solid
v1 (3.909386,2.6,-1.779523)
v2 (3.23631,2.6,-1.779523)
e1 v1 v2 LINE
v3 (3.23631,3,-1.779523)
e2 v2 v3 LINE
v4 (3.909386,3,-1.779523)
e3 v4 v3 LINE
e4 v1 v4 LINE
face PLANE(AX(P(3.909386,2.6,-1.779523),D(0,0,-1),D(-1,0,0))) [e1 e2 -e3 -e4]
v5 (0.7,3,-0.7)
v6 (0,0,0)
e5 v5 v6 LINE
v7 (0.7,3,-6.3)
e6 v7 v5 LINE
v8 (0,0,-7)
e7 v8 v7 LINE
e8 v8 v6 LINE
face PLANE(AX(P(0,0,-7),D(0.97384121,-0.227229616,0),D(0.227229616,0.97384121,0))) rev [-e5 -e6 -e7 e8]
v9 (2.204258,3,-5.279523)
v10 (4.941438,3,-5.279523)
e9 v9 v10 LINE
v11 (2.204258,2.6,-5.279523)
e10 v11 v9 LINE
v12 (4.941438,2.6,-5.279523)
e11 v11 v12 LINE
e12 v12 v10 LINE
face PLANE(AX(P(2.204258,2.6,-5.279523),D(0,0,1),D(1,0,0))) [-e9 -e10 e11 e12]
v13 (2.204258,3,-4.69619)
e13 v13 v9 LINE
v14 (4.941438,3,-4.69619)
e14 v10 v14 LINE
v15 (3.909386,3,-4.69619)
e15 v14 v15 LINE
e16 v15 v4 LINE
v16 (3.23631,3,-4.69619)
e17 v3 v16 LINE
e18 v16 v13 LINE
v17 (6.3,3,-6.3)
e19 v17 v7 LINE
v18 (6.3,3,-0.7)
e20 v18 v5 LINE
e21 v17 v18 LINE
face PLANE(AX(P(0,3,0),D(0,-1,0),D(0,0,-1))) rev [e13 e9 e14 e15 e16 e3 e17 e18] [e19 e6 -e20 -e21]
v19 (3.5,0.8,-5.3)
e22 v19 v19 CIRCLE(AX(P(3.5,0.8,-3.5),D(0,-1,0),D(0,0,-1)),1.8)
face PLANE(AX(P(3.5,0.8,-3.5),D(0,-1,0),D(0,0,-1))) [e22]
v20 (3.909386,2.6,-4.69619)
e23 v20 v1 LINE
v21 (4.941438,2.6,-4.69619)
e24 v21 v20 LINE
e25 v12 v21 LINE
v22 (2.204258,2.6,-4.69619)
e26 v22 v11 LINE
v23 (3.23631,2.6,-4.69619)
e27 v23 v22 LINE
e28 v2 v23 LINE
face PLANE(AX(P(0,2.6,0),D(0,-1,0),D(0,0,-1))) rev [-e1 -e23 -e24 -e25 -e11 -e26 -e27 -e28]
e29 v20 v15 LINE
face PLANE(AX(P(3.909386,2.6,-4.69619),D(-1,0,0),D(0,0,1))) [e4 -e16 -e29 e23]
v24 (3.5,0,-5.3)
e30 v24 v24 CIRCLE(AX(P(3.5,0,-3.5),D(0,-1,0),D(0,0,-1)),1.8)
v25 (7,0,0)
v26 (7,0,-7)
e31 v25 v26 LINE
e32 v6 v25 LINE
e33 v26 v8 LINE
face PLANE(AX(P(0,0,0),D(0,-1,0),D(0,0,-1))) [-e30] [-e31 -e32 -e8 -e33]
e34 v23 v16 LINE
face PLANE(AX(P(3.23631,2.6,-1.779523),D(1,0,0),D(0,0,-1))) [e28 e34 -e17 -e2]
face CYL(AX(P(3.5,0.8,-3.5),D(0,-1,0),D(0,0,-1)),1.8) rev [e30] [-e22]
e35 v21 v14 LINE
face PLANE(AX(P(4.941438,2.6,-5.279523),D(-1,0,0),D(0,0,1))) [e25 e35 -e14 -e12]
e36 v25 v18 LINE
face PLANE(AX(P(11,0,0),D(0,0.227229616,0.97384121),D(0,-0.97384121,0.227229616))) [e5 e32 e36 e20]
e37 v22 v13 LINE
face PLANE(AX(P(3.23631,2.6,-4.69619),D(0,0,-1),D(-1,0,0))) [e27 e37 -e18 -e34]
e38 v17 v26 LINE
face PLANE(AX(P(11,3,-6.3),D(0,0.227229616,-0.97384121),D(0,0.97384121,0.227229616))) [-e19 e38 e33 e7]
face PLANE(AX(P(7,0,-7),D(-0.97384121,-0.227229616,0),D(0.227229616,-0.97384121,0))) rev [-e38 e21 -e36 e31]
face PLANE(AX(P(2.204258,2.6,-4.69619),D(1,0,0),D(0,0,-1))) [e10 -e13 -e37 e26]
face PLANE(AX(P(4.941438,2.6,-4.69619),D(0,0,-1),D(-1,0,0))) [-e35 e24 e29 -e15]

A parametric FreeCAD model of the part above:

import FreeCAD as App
import Part
import Sketcher
from FreeCAD import Vector
Q = App.Units.Quantity


def add_polygon(sketch, points):
    """Adds a closed chain of lines whose ends are joined by coincident constraints."""
    first, n = sketch.GeometryCount, len(points)
    for a, b in zip(points, points[1:] + points[:1]):
        sketch.addGeometry(Part.LineSegment(App.Vector(*a, 0), App.Vector(*b, 0)), False)
    for i in range(n):
        sketch.addConstraint(Sketcher.Constraint("Coincident", first + i, 2, first + (i + 1) % n, 1))

doc = App.newDocument("Part")
body = doc.addObject("PartDesign::Body", "Body")

sketch1 = body.newObject("Sketcher::SketchObject", "Sketch")
sketch1.AttachmentSupport = (doc.getObject("XZ_Plane"), [""])
sketch1.MapMode = "FlatFace"
add_polygon(sketch1, [(0, -7), (0, 0), (7, 0), (7, -7)])
sketch1.addConstraint(Sketcher.Constraint("Vertical", 0))
sketch1.addConstraint(Sketcher.Constraint("Horizontal", 1))
sketch1.addConstraint(Sketcher.Constraint("Vertical", 2))
sketch1.addConstraint(Sketcher.Constraint("Horizontal", 3))
sketch1.addConstraint(Sketcher.Constraint("Coincident", 0, 2, -1, 1))
sketch1.addConstraint(Sketcher.Constraint("Equal", 3, 0))
sketch1.addConstraint(Sketcher.Constraint("DistanceX", 1, 1, 1, 2, Q("7 mm")))
pad1 = body.newObject("PartDesign::Pad", "Pad")
pad1.Profile = sketch1
pad1.Length = 3
pad1.Reversed = True

sketch2 = body.newObject("Sketcher::SketchObject", "Sketch001")
sketch2.AttachmentSupport = (doc.getObject("XY_Plane"), [""])
sketch2.MapMode = "FlatFace"
add_polygon(sketch2, [(0, 0), (0.7, 3), (0, 3)])
add_polygon(sketch2, [(6.3, 3), (7, 0), (7, 3)])
sketch2.addConstraint(Sketcher.Constraint("Horizontal", 1))
sketch2.addConstraint(Sketcher.Constraint("Vertical", 2))
sketch2.addConstraint(Sketcher.Constraint("Vertical", 4))
sketch2.addConstraint(Sketcher.Constraint("Horizontal", 5))
sketch2.addConstraint(Sketcher.Constraint("Coincident", 2, 2, -1, 1))
sketch2.addConstraint(Sketcher.Constraint("PointOnObject", 3, 2, -1))
sketch2.addConstraint(Sketcher.Constraint("Horizontal", 1, 2, 4, 2))
sketch2.addConstraint(Sketcher.Constraint("Equal", 1, 5))
sketch2.addConstraint(Sketcher.Constraint("DistanceY", 2, 2, 2, 1, Q("3 mm")))
sketch2.addConstraint(Sketcher.Constraint("DistanceX", 1, 2, 1, 1, Q("0.7 mm")))
sketch2.addConstraint(Sketcher.Constraint("DistanceX", -1, 1, 3, 2, Q("7 mm")))
pocket1 = body.newObject("PartDesign::Pocket", "Pocket")
pocket1.Profile = sketch2
pocket1.Length = 7

sketch3 = body.newObject("Sketcher::SketchObject", "Sketch002")
sketch3.AttachmentSupport = (doc.getObject("YZ_Plane"), [""])
sketch3.MapMode = "FlatFace"
add_polygon(sketch3, [(0, 0), (3, -0.7), (3, 0)])
add_polygon(sketch3, [(3, -7), (3, -6.3), (0, -7)])
sketch3.addConstraint(Sketcher.Constraint("Vertical", 1))
sketch3.addConstraint(Sketcher.Constraint("Horizontal", 2))
sketch3.addConstraint(Sketcher.Constraint("Vertical", 3))
sketch3.addConstraint(Sketcher.Constraint("Horizontal", 5))
sketch3.addConstraint(Sketcher.Constraint("Coincident", 2, 2, -1, 1))
sketch3.addConstraint(Sketcher.Constraint("PointOnObject", 4, 2, -2))
sketch3.addConstraint(Sketcher.Constraint("Vertical", 1, 2, 3, 2))
sketch3.addConstraint(Sketcher.Constraint("Equal", 1, 3))
sketch3.addConstraint(Sketcher.Constraint("DistanceX", 2, 2, 2, 1, Q("3 mm")))
sketch3.addConstraint(Sketcher.Constraint("DistanceY", 1, 1, 1, 2, Q("0.7 mm")))
sketch3.addConstraint(Sketcher.Constraint("DistanceY", 4, 2, -1, 1, Q("7 mm")))
pocket2 = body.newObject("PartDesign::Pocket", "Pocket001")
pocket2.Profile = sketch3
pocket2.Length = 11
pocket2.Reversed = True

sketch4 = body.newObject("Sketcher::SketchObject", "Sketch003")
sketch4.AttachmentSupport = (doc.getObject("XZ_Plane"), [""])
sketch4.MapMode = "FlatFace"
sketch4.addGeometry(Part.Circle(Vector(3.5, -3.5, 0), Vector(0, 0, 1), 1.8), False)
sketch4.addConstraint(Sketcher.Constraint("Diameter", 0, Q("3.6 mm")))
sketch4.addConstraint(Sketcher.Constraint("DistanceX", -1, 1, 0, 3, Q("3.5 mm")))
sketch4.addConstraint(Sketcher.Constraint("DistanceY", 0, 3, -1, 1, Q("3.5 mm")))
pocket3 = body.newObject("PartDesign::Pocket", "Pocket002")
pocket3.Profile = sketch4
pocket3.Length = 0.8

sketch5 = body.newObject("Sketcher::SketchObject", "Sketch004")
sketch5.AttachmentSupport = (doc.getObject("XZ_Plane"), [""])
sketch5.MapMode = "FlatFace"
sketch5.AttachmentOffset = App.Placement(Vector(0, 0, -3), App.Rotation())
add_polygon(sketch5, [(3.2, -4.7), (3.2, -1.8), (3.9, -1.8), (3.9, -4.7), (4.9, -4.7), (4.9, -5.3), (2.2, -5.3), (2.2, -4.7)])
sketch5.addConstraint(Sketcher.Constraint("Vertical", 0))
sketch5.addConstraint(Sketcher.Constraint("Horizontal", 1))
sketch5.addConstraint(Sketcher.Constraint("Vertical", 2))
sketch5.addConstraint(Sketcher.Constraint("Horizontal", 3))
sketch5.addConstraint(Sketcher.Constraint("Vertical", 4))
sketch5.addConstraint(Sketcher.Constraint("Horizontal", 5))
sketch5.addConstraint(Sketcher.Constraint("Vertical", 6))
sketch5.addConstraint(Sketcher.Constraint("Horizontal", 7))
sketch5.addConstraint(Sketcher.Constraint("Horizontal", 3, 2, 6, 2))
sketch5.addConstraint(Sketcher.Constraint("Equal", 3, 7))
sketch5.addConstraint(Sketcher.Constraint("DistanceY", 4, 2, 1, 2, Q("3.5 mm")))
sketch5.addConstraint(Sketcher.Constraint("DistanceX", 3, 1, 3, 2, Q("1.032051 mm")))
sketch5.addConstraint(Sketcher.Constraint("DistanceX", 5, 2, 5, 1, Q("2.737179 mm")))
sketch5.addConstraint(Sketcher.Constraint("DistanceY", 0, 1, 0, 2, Q("2.916667 mm")))
sketch5.addConstraint(Sketcher.Constraint("DistanceX", -1, 1, 0, 2, Q("3.23631 mm")))
sketch5.addConstraint(Sketcher.Constraint("DistanceY", 2, 2, -1, 1, Q("4.69619 mm")))
pocket4 = body.newObject("PartDesign::Pocket", "Pocket003")
pocket4.Profile = sketch5
pocket4.Length = 0.4
pocket4.Reversed = True

doc.recompute()
